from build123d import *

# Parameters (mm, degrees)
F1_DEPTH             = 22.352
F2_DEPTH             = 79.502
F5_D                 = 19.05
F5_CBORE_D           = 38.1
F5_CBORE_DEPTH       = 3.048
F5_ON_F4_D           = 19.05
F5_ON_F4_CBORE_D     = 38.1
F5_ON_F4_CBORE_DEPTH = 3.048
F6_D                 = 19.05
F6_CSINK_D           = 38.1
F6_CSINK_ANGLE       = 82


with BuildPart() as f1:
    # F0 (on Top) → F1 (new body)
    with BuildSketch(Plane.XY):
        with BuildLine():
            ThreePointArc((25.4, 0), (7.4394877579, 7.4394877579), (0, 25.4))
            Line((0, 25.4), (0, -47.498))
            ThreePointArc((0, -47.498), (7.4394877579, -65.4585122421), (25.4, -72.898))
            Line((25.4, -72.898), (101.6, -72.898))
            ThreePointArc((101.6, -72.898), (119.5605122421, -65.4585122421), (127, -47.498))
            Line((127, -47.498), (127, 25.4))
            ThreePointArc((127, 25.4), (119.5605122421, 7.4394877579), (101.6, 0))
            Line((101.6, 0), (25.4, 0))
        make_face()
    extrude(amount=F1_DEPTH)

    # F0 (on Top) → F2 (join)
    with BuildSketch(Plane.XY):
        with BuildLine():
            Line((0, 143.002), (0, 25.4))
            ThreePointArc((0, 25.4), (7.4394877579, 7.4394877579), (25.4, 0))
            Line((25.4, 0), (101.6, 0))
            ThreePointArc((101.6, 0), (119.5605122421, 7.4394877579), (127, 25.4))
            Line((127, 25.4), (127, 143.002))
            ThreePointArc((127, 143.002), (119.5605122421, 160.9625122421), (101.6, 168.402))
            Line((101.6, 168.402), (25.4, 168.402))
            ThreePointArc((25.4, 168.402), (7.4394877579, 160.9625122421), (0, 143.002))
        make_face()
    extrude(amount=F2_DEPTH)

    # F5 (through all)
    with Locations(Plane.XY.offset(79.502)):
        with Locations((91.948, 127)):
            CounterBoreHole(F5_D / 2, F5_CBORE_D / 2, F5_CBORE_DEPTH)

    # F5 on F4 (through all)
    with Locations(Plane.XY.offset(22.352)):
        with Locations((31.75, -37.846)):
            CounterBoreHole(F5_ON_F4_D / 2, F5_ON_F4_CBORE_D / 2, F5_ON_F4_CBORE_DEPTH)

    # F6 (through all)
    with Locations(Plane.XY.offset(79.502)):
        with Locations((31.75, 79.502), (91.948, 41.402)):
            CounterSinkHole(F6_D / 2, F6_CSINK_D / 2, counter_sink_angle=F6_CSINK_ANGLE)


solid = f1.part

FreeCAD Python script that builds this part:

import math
import FreeCAD as App
import Part
import Sketcher
from FreeCAD import Vector
Q = App.Units.Quantity

doc = App.newDocument("Part")
body = doc.addObject("PartDesign::Body", "Body")

sketch1 = doc.addObject("Sketcher::SketchObject", "Sketch")
body.addObject(sketch1)
sketch1.AttachmentSupport = (doc.XY_Plane, [""])
sketch1.MapMode = "FlatFace"
sketch1.addGeometry([
    Part.ArcOfCircle(Part.Circle(Vector(25.4, 25.4, 0), Vector(0, 0, 1), 25.4), math.radians(180), math.radians(270)),
    Part.LineSegment(Vector(0, 25.4, 0), Vector(0, -47.498, 0)),
    Part.ArcOfCircle(Part.Circle(Vector(25.4, -47.498, 0), Vector(0, 0, 1), 25.4), math.radians(180), math.radians(270)),
    Part.LineSegment(Vector(25.4, -72.898, 0), Vector(101.6, -72.898, 0)),
    Part.ArcOfCircle(Part.Circle(Vector(101.6, -47.498, 0), Vector(0, 0, 1), 25.4), math.radians(-90), math.radians(0)),
    Part.LineSegment(Vector(127, -47.498, 0), Vector(127, 25.4, 0)),
    Part.ArcOfCircle(Part.Circle(Vector(101.6, 25.4, 0), Vector(0, 0, 1), 25.4), math.radians(-90), math.radians(0)),
    Part.LineSegment(Vector(101.6, 0, 0), Vector(25.4, 0, 0)),
], False)
sketch1.addConstraint([
    Sketcher.Constraint("Tangent", 0, 1, 1, 1),
    Sketcher.Constraint("Tangent", 1, 2, 2, 1),
    Sketcher.Constraint("Tangent", 2, 2, 3, 1),
    Sketcher.Constraint("Tangent", 3, 2, 4, 1),
    Sketcher.Constraint("Tangent", 4, 2, 5, 1),
    Sketcher.Constraint("Tangent", 5, 2, 6, 2),
    Sketcher.Constraint("Tangent", 6, 1, 7, 1),
    Sketcher.Constraint("Tangent", 7, 2, 0, 2),
    Sketcher.Constraint("Vertical", 1),
    Sketcher.Constraint("Horizontal", 3),
    Sketcher.Constraint("Vertical", 5),
    Sketcher.Constraint("Horizontal", 7),
    Sketcher.Constraint("Equal", 0, 2),
    Sketcher.Constraint("Equal", 2, 4),
    Sketcher.Constraint("Equal", 4, 6),
    Sketcher.Constraint("PointOnObject", 0, 1, -2),
    Sketcher.Constraint("PointOnObject", 6, 1, -1),
    Sketcher.Constraint("Radius", 0, Q("1 in")),
    Sketcher.Constraint("DistanceX", 3, 1, 3, 2, Q("3 in")),
    Sketcher.Constraint("DistanceY", 1, 2, 1, 1, Q("2.87 in")),
])
pad1 = doc.addObject("PartDesign::Pad", "Pad")
body.addObject(pad1)
pad1.Profile = sketch1
pad1.Length = Q("0.88 in")

sketch2 = doc.addObject("Sketcher::SketchObject", "Sketch001")
body.addObject(sketch2)
sketch2.AttachmentSupport = (doc.XY_Plane, [""])
sketch2.MapMode = "FlatFace"
sketch2.addGeometry([
    Part.LineSegment(Vector(0, 143.002, 0), Vector(0, 25.4, 0)),
    Part.ArcOfCircle(Part.Circle(Vector(25.4, 25.4, 0), Vector(0, 0, 1), 25.4), math.radians(180), math.radians(270)),
    Part.LineSegment(Vector(25.4, 0, 0), Vector(101.6, 0, 0)),
    Part.ArcOfCircle(Part.Circle(Vector(101.6, 25.4, 0), Vector(0, 0, 1), 25.4), math.radians(-90), math.radians(0)),
    Part.LineSegment(Vector(127, 25.4, 0), Vector(127, 143.002, 0)),
    Part.ArcOfCircle(Part.Circle(Vector(101.6, 143.002, 0), Vector(0, 0, 1), 25.4), math.radians(0), math.radians(90)),
    Part.LineSegment(Vector(101.6, 168.402, 0), Vector(25.4, 168.402, 0)),
    Part.ArcOfCircle(Part.Circle(Vector(25.4, 143.002, 0), Vector(0, 0, 1), 25.4), math.radians(90), math.radians(180)),
], False)
sketch2.addConstraint([
    Sketcher.Constraint("Tangent", 0, 2, 1, 1),
    Sketcher.Constraint("Tangent", 1, 2, 2, 1),
    Sketcher.Constraint("Tangent", 2, 2, 3, 1),
    Sketcher.Constraint("Tangent", 3, 2, 4, 1),
    Sketcher.Constraint("Tangent", 4, 2, 5, 1),
    Sketcher.Constraint("Tangent", 5, 2, 6, 1),
    Sketcher.Constraint("Tangent", 6, 2, 7, 1),
    Sketcher.Constraint("Tangent", 7, 2, 0, 1),
    Sketcher.Constraint("Vertical", 0),
    Sketcher.Constraint("Horizontal", 2),
    Sketcher.Constraint("Vertical", 4),
    Sketcher.Constraint("Horizontal", 6),
    Sketcher.Constraint("Equal", 1, 3),
    Sketcher.Constraint("Equal", 3, 5),
    Sketcher.Constraint("Equal", 5, 7),
    Sketcher.Constraint("PointOnObject", 0, 2, -2),
    Sketcher.Constraint("PointOnObject", 1, 2, -1),
    Sketcher.Constraint("Radius", 1, Q("1 in")),
    Sketcher.Constraint("DistanceX", 2, 1, 2, 2, Q("3 in")),
    Sketcher.Constraint("DistanceY", 0, 2, 0, 1, Q("4.63 in")),
])
pad2 = doc.addObject("PartDesign::Pad", "Pad001")
body.addObject(pad2)
pad2.Profile = sketch2
pad2.Length = Q("3.13 in")

sketch3 = doc.addObject("Sketcher::SketchObject", "Sketch002")
body.addObject(sketch3)
sketch3.AttachmentSupport = (doc.XY_Plane, [""])
sketch3.MapMode = "FlatFace"
sketch3.AttachmentOffset = App.Placement(Vector(0, 0, 3.13 * 25.4), App.Rotation())
sketch3.addGeometry(Part.Circle(Vector(91.948, 127, 0), Vector(0, 0, 1), 9.525), False)
sketch3.addConstraint([
    Sketcher.Constraint("Diameter", 0, Q("0.75 in")),
    Sketcher.Constraint("DistanceY", -1, 1, 0, 3, Q("5 in")),
    Sketcher.Constraint("DistanceX", -1, 1, 0, 3, Q("3.62 in")),
])
doc.recompute()
hole = doc.addObject("PartDesign::Hole", "Hole")
body.addObject(hole)
hole.Profile = sketch3
hole.ThreadType = "None"
hole.Diameter = Q("0.75 in")
hole.DepthType = "ThroughAll"
hole.HoleCutType = "Counterbore"
hole.HoleCutDiameter = Q("1.5 in")
hole.HoleCutDepth = Q("0.12 in")

sketch4 = doc.addObject("Sketcher::SketchObject", "Sketch003")
body.addObject(sketch4)
sketch4.AttachmentSupport = (doc.XY_Plane, [""])
sketch4.MapMode = "FlatFace"
sketch4.AttachmentOffset = App.Placement(Vector(0, 0, 0.88 * 25.4), App.Rotation())
sketch4.addGeometry(Part.Circle(Vector(31.75, -37.846, 0), Vector(0, 0, 1), 9.525), False)
sketch4.addConstraint([
    Sketcher.Constraint("Diameter", 0, Q("0.75 in")),
    Sketcher.Constraint("DistanceX", -1, 1, 0, 3, Q("1.25 in")),
    Sketcher.Constraint("DistanceY", 0, 3, -1, 1, Q("1.49 in")),
])
doc.recompute()
hole2 = doc.addObject("PartDesign::Hole", "Hole001")
body.addObject(hole2)
hole2.Profile = sketch4
hole2.ThreadType = "None"
hole2.Diameter = Q("0.75 in")
hole2.DepthType = "ThroughAll"
hole2.HoleCutType = "Counterbore"
hole2.HoleCutDiameter = Q("1.5 in")
hole2.HoleCutDepth = Q("0.12 in")

sketch5 = doc.addObject("Sketcher::SketchObject", "Sketch004")
body.addObject(sketch5)
sketch5.AttachmentSupport = (doc.XY_Plane, [""])
sketch5.MapMode = "FlatFace"
sketch5.AttachmentOffset = App.Placement(Vector(0, 0, 3.13 * 25.4), App.Rotation())
sketch5.addGeometry([
    Part.Circle(Vector(31.75, 79.502, 0), Vector(0, 0, 1), 9.525),
    Part.Circle(Vector(91.948, 41.402, 0), Vector(0, 0, 1), 9.525),
], False)
sketch5.addConstraint([
    Sketcher.Constraint("Equal", 0, 1),
    Sketcher.Constraint("Diameter", 0, Q("0.75 in")),
    Sketcher.Constraint("DistanceY", 1, 3, 0, 3, Q("1.5 in")),
    Sketcher.Constraint("DistanceX", -1, 1, 0, 3, Q("1.25 in")),
    Sketcher.Constraint("DistanceY", -1, 1, 0, 3, Q("3.13 in")),
    Sketcher.Constraint("DistanceX", -1, 1, 1, 3, Q("3.62 in")),
])
doc.recompute()
hole3 = doc.addObject("PartDesign::Hole", "Hole002")
body.addObject(hole3)
hole3.Profile = sketch5
hole3.ThreadType = "None"
hole3.Diameter = Q("0.75 in")
hole3.DepthType = "ThroughAll"
hole3.HoleCutType = "Countersink"
hole3.HoleCutDiameter = Q("1.5 in")
hole3.HoleCutCountersinkAngle = 82

doc.recompute()
